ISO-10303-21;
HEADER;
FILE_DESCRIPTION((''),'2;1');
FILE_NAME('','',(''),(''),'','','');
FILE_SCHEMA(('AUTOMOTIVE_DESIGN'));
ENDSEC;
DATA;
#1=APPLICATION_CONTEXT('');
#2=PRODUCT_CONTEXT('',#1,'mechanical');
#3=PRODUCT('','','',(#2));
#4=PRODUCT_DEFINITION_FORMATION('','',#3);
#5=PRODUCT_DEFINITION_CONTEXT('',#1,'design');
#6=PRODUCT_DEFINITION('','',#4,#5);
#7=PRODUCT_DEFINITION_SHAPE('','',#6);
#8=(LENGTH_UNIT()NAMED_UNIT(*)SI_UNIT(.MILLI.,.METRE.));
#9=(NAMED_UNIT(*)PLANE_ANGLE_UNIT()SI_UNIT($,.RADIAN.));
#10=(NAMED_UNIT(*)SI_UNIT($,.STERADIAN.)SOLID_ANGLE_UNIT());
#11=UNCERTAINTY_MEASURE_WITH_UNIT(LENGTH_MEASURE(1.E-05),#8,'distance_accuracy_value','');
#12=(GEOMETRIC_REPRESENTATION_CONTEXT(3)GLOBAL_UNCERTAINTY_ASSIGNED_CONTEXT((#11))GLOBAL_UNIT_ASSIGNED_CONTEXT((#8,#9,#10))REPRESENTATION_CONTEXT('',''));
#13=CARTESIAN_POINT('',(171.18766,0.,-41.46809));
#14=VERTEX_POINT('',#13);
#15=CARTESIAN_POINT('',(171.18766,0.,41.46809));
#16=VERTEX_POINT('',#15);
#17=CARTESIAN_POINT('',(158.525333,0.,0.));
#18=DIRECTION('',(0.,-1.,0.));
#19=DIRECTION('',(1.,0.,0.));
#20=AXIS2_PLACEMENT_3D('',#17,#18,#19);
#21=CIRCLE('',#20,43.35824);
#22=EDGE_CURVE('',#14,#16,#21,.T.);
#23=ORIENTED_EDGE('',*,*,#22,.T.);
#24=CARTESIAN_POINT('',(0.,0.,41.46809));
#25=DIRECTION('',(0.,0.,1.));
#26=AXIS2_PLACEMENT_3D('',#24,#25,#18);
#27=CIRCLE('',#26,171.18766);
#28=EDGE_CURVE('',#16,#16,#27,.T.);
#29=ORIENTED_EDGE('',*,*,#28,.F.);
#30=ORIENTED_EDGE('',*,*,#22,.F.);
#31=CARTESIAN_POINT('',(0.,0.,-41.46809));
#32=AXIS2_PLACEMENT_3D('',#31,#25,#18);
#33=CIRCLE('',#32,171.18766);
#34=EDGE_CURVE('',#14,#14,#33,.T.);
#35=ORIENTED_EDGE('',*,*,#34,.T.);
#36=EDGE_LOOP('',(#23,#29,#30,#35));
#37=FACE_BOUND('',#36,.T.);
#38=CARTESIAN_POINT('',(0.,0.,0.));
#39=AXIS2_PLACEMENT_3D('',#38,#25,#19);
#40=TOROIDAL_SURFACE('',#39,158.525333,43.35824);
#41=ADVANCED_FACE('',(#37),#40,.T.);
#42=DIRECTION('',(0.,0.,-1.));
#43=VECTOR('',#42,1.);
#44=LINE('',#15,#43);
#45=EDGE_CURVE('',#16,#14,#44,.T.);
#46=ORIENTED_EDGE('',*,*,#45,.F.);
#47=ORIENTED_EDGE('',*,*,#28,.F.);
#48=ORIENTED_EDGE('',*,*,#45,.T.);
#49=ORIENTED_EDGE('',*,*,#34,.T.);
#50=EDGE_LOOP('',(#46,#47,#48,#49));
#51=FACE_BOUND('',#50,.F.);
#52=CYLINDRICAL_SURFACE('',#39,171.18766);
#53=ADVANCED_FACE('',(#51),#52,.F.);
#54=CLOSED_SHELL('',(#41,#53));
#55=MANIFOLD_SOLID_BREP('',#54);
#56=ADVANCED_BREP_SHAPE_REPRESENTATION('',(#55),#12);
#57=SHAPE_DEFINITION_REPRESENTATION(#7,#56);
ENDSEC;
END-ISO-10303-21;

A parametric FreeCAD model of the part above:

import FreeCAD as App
import Part
import Sketcher

doc = App.newDocument("Part")
body = doc.addObject("PartDesign::Body", "Body")

sketch1 = body.newObject("Sketcher::SketchObject", "Sketch")
sketch1.AttachmentSupport = (doc.getObject("YZ_Plane"), [""])
sketch1.MapMode = "FlatFace"
sketch1.addGeometry(Part.Circle(App.Vector(-159, 0, 0), App.Vector(0, 0, 1), 43), False)
sketch1.addConstraint(Sketcher.Constraint("PointOnObject", 0, 3, -1))
sketch1.addConstraint(Sketcher.Constraint("Diameter", 0, 86.71648))
sketch1.addConstraint(Sketcher.Constraint("DistanceX", 0, 3, -1, 1, 158.525333))

sketch2 = body.newObject("Sketcher::SketchObject", "Sketch001")
sketch2.AttachmentSupport = (doc.getObject("XY_Plane"), [""])
sketch2.MapMode = "FlatFace"
sketch2.addGeometry(Part.Circle(App.Vector(0, 0, 0), App.Vector(0, 0, 1), 207), False)
sketch2.addConstraint(Sketcher.Constraint("Coincident", 0, 3, -1, 1))
sketch2.addConstraint(Sketcher.Constraint("Diameter", 0, 413.320174))
doc.recompute()

additivepipe = body.newObject("PartDesign::AdditivePipe", "AdditivePipe")
additivepipe.Profile = sketch1
additivepipe.Spine = (sketch2, ["Edge1"])

sketch3 = body.newObject("Sketcher::SketchObject", "Sketch002")
sketch3.AttachmentSupport = (doc.getObject("XY_Plane"), [""])
sketch3.MapMode = "FlatFace"
sketch3.addGeometry(Part.Circle(App.Vector(0, 0, 0), App.Vector(0, 0, 1), 171), False)
sketch3.addConstraint(Sketcher.Constraint("Coincident", 0, 3, -1, 1))
sketch3.addConstraint(Sketcher.Constraint("Diameter", 0, 342.37532))
pocket1 = body.newObject("PartDesign::Pocket", "Pocket")
pocket1.Profile = sketch3
pocket1.Type = "ThroughAll"
pocket1.Midplane = True

doc.recompute()
